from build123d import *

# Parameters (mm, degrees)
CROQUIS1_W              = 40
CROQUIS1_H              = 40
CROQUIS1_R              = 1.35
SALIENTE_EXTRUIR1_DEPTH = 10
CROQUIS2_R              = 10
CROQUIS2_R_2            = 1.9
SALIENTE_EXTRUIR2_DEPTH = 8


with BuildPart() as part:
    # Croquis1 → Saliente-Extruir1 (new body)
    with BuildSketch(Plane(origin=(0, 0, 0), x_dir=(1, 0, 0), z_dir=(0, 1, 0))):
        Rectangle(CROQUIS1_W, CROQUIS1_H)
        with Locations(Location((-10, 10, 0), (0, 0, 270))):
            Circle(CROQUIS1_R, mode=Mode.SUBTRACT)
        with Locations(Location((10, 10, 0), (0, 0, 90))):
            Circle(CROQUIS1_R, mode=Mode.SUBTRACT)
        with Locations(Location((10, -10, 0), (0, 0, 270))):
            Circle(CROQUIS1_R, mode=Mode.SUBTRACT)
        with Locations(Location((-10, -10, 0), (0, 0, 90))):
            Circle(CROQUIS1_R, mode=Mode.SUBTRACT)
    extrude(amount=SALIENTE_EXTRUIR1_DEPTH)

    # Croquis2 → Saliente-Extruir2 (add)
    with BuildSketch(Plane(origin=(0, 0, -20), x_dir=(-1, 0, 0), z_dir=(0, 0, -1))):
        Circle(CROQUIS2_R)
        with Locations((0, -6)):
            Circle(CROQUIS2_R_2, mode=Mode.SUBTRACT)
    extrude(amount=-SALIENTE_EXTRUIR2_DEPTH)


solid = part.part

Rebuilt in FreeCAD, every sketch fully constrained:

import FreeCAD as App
import Part
import Sketcher
from FreeCAD import Vector
Q = App.Units.Quantity


def add_polygon(sketch, points):
    """Adds a closed chain of lines whose ends are joined by coincident constraints."""
    first, n = sketch.GeometryCount, len(points)
    for a, b in zip(points, points[1:] + points[:1]):
        sketch.addGeometry(Part.LineSegment(App.Vector(*a, 0), App.Vector(*b, 0)), False)
    for i in range(n):
        sketch.addConstraint(Sketcher.Constraint("Coincident", first + i, 2, first + (i + 1) % n, 1))

doc = App.newDocument("Part")
body = doc.addObject("PartDesign::Body", "Body")

sketch1 = doc.addObject("Sketcher::SketchObject", "Sketch")
body.addObject(sketch1)
sketch1.AttachmentSupport = (doc.XZ_Plane, [""])
sketch1.MapMode = "FlatFace"
add_polygon(sketch1, [(-20, -20), (-20, 20), (20, 20), (20, -20)])
sketch1.addGeometry(Part.Circle(Vector(-10, 10, 0), Vector(0, 0, 1), 1.4), False)
sketch1.addGeometry(Part.Circle(Vector(10, 10, 0), Vector(0, 0, 1), 1.4), False)
sketch1.addGeometry(Part.Circle(Vector(-10, -10, 0), Vector(0, 0, 1), 1.4), False)
sketch1.addGeometry(Part.Circle(Vector(10, -10, 0), Vector(0, 0, 1), 1.4), False)
sketch1.addConstraint([
    Sketcher.Constraint("Vertical", 0),
    Sketcher.Constraint("Horizontal", 1),
    Sketcher.Constraint("Vertical", 2),
    Sketcher.Constraint("Horizontal", 3),
    Sketcher.Constraint("Equal", 4, 5),
    Sketcher.Constraint("Equal", 5, 6),
    Sketcher.Constraint("Equal", 6, 7),
    Sketcher.Constraint("Symmetric", 5, 3, 6, 3, -1, 1),
    Sketcher.Constraint("Symmetric", 4, 3, 7, 3, -1, 1),
    Sketcher.Constraint("Symmetric", 0, 2, 2, 2, -1, 1),
    Sketcher.Constraint("Symmetric", 4, 3, 5, 3, -2),
    Sketcher.Constraint("Equal", 3, 0),
    Sketcher.Constraint("Diameter", 4, Q("2.7 mm")),
    Sketcher.Constraint("DistanceX", 1, 1, 1, 2, Q("40 mm")),
    Sketcher.Constraint("DistanceX", 4, 3, -1, 1, Q("10 mm")),
    Sketcher.Constraint("DistanceY", -1, 1, 4, 3, Q("10 mm")),
])
pad1 = doc.addObject("PartDesign::Pad", "Pad")
body.addObject(pad1)
pad1.Profile = sketch1
pad1.Length = 10
pad1.Reversed = True

sketch2 = doc.addObject("Sketcher::SketchObject", "Sketch001")
body.addObject(sketch2)
sketch2.AttachmentSupport = (doc.XY_Plane, [""])
sketch2.MapMode = "FlatFace"
sketch2.AttachmentOffset = App.Placement(Vector(0, 0, -20), App.Rotation())
sketch2.addGeometry([
    Part.Circle(Vector(0, 0, 0), Vector(0, 0, 1), 10),
    Part.Circle(Vector(0, -6, 0), Vector(0, 0, 1), 1.9),
], False)
sketch2.addConstraint([
    Sketcher.Constraint("Coincident", 0, 3, -1, 1),
    Sketcher.Constraint("PointOnObject", 1, 3, -2),
    Sketcher.Constraint("Diameter", 0, Q("20 mm")),
    Sketcher.Constraint("Diameter", 1, Q("3.8 mm")),
    Sketcher.Constraint("DistanceY", 1, 3, -1, 1, Q("6 mm")),
])
pad2 = doc.addObject("PartDesign::Pad", "Pad001")
body.addObject(pad2)
pad2.Profile = sketch2
pad2.Length = 8

doc.recompute()
